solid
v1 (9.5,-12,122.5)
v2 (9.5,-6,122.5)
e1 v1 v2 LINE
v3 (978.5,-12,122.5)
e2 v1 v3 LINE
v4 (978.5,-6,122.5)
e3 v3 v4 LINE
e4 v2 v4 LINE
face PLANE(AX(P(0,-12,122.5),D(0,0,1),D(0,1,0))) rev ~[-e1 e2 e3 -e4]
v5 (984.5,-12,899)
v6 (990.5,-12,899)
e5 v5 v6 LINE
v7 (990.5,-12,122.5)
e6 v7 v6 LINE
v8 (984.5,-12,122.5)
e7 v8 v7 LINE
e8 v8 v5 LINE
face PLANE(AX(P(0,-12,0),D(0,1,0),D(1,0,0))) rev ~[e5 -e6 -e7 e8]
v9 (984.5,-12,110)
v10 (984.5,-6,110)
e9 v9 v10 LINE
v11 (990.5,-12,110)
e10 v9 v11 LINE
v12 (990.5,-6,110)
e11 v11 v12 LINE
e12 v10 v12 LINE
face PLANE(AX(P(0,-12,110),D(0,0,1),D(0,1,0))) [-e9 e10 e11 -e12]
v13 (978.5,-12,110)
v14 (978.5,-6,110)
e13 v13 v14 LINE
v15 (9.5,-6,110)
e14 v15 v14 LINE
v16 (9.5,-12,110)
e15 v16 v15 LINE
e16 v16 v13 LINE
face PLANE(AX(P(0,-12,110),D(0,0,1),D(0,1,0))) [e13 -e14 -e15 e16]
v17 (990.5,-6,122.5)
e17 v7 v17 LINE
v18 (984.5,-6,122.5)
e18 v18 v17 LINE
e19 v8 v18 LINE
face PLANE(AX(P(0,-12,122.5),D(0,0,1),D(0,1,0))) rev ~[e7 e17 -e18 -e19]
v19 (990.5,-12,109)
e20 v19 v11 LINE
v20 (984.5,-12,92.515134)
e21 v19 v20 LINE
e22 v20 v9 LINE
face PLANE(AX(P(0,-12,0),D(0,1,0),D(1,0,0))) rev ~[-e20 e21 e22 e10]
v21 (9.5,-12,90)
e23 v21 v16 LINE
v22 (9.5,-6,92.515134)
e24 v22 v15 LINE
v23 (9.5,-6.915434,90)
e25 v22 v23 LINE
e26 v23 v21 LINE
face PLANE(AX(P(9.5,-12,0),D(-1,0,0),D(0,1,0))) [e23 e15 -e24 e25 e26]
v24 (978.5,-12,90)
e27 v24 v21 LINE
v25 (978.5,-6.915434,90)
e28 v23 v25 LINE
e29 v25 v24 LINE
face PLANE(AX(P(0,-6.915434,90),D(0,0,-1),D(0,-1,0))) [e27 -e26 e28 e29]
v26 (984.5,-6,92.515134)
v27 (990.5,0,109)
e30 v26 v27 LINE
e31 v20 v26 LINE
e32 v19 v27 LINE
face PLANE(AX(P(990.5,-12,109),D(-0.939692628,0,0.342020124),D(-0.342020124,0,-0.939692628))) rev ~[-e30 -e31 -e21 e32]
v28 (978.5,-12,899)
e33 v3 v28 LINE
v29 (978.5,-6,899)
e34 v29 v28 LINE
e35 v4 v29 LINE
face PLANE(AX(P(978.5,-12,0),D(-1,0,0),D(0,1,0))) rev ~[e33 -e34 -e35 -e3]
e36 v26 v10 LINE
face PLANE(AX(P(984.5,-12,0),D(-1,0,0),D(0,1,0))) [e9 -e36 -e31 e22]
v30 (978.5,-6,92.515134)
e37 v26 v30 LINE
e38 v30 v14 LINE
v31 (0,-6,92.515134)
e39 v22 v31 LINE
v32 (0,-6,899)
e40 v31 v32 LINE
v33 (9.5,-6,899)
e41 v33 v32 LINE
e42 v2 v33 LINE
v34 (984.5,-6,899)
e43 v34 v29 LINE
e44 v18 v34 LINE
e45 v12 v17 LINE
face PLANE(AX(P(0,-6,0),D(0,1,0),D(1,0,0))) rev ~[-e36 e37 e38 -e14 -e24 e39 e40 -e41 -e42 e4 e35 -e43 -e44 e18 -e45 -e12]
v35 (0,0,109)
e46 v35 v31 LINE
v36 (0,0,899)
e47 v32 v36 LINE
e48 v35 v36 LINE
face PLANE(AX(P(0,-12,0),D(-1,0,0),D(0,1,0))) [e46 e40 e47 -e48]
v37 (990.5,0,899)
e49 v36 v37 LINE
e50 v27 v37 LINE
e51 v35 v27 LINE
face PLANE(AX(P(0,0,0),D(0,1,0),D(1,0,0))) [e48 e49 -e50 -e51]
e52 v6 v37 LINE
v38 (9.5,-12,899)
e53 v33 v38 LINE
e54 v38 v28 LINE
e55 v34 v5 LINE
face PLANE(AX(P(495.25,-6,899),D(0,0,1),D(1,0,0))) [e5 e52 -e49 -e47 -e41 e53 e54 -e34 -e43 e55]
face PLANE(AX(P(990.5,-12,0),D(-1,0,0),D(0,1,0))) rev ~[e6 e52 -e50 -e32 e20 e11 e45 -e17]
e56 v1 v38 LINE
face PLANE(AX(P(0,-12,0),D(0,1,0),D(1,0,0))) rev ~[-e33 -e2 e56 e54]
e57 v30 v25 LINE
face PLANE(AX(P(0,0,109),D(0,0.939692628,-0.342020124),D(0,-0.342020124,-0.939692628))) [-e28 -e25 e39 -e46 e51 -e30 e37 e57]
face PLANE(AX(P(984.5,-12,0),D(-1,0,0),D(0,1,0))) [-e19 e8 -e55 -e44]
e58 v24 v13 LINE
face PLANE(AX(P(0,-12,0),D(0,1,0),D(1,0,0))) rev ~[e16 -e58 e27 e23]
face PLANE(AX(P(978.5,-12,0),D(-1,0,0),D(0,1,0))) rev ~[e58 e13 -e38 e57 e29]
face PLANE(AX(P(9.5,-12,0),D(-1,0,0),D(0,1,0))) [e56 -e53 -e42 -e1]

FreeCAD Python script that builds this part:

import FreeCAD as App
import Part
import Sketcher

V = App.Vector
Q = App.Units.Quantity


def add_polygon(sketch, points):
    """Adds a closed chain of lines whose ends are joined by coincident constraints."""
    first, n = sketch.GeometryCount, len(points)
    for a, b in zip(points, points[1:] + points[:1]):
        sketch.addGeometry(Part.LineSegment(App.Vector(*a, 0), App.Vector(*b, 0)), False)
    for i in range(n):
        sketch.addConstraint(Sketcher.Constraint("Coincident", first + i, 2, first + (i + 1) % n, 1))

doc = App.newDocument("Part")
params = doc.addObject("Spreadsheet::Sheet", "Params")
for row, (alias, value) in enumerate([
    ("sketch1_height", "12 mm"),
    ("sketch1_width", "990.5 mm"),
    ("pad1_length", "899 mm"),
    ("sketch2_height", "6 mm"),
    ("sketch2_width", "9.5 mm"),
    ("sketch3_width", "6 mm"),
    ("sketch4_width", "6 mm"),
    ("sketch4_height", "12.5 mm"),
    ("sketch5_width", "25 mm"),
    ("sketch5_height", "109 mm"),
    ("sketch5_height2", "90 mm"),
    ("sketch6_height", "19 mm"),
], start=1):
    params.set(f"A{row}", alias)
    params.set(f"B{row}", "=" + value)
    params.setAlias(f"B{row}", alias)

body = doc.addObject("PartDesign::Body", "Body")

# Sketch on XY plane
sketch1 = body.newObject("Sketcher::SketchObject", "Sketch")
sketch1.AttachmentSupport = (doc.getObject("XY_Plane"), [""])
sketch1.MapMode = "FlatFace"
add_polygon(sketch1, [(0, 0), (0, -12), (990, -12), (990, 0)])  # lines 0-3
sketch1.addConstraint([
    Sketcher.Constraint("Vertical", 0),
    Sketcher.Constraint("Horizontal", 1),
    Sketcher.Constraint("Vertical", 2),
    Sketcher.Constraint("Horizontal", 3),
    Sketcher.Constraint("Coincident", 3, 2, -1, 1),
    Sketcher.Constraint("DistanceY", 0, 2, 0, 1, 12.0),
    Sketcher.Constraint("DistanceX", 1, 1, 1, 2, 990.5),
])
sketch1.setExpression("Constraints[9]", "Params.sketch1_height")
sketch1.setExpression("Constraints[10]", "Params.sketch1_width")
pad1 = body.newObject("PartDesign::Pad", "Pad")
pad1.Profile = sketch1
pad1.setExpression("Length", "Params.pad1_length")

# Sketch on XY plane
sketch2 = body.newObject("Sketcher::SketchObject", "Sketch001")
sketch2.AttachmentSupport = (doc.getObject("XY_Plane"), [""])
sketch2.MapMode = "FlatFace"
add_polygon(sketch2, [(0, -6), (0, -12), (10, -12), (10, -6)])  # lines 0-3
sketch2.addConstraint([
    Sketcher.Constraint("Vertical", 0),
    Sketcher.Constraint("Horizontal", 1),
    Sketcher.Constraint("Vertical", 2),
    Sketcher.Constraint("Horizontal", 3),
    Sketcher.Constraint("PointOnObject", 0, 2, -2),
    Sketcher.Constraint("DistanceY", 0, 2, 0, 1, 6.0),
    Sketcher.Constraint("DistanceX", 1, 1, 1, 2, 9.5),
    Sketcher.Constraint("DistanceY", 0, 2, -1, 1, 12.0),
])
sketch2.setExpression("Constraints[9]", "Params.sketch2_height")
sketch2.setExpression("Constraints[10]", "Params.sketch2_width")
pocket1 = body.newObject("PartDesign::Pocket", "Pocket")
pocket1.Profile = sketch2
pocket1.Type = "ThroughAll"
pocket1.Reversed = True

# Sketch on XY plane
sketch3 = body.newObject("Sketcher::SketchObject", "Sketch002")
sketch3.AttachmentSupport = (doc.getObject("XY_Plane"), [""])
sketch3.MapMode = "FlatFace"
add_polygon(sketch3, [(978, -6), (978, -12), (984, -12), (984, -6)])  # lines 0-3
sketch3.addConstraint([
    Sketcher.Constraint("Vertical", 0),
    Sketcher.Constraint("Horizontal", 1),
    Sketcher.Constraint("Vertical", 2),
    Sketcher.Constraint("Horizontal", 3),
    Sketcher.Constraint("Equal", 3, 0),
    Sketcher.Constraint("DistanceX", 1, 1, 1, 2, 6.0),
    Sketcher.Constraint("DistanceY", 0, 2, -1, 1, 12.0),
    Sketcher.Constraint("DistanceX", -1, 1, 0, 2, 978.5),
])
sketch3.setExpression("Constraints[9]", "Params.sketch3_width")
pocket2 = body.newObject("PartDesign::Pocket", "Pocket001")
pocket2.Profile = sketch3
pocket2.Type = "ThroughAll"
pocket2.Reversed = True

# Sketch on YZ plane
sketch4 = body.newObject("Sketcher::SketchObject", "Sketch003")
sketch4.AttachmentSupport = (doc.getObject("YZ_Plane"), [""])
sketch4.MapMode = "FlatFace"
add_polygon(sketch4, [(-12, 122), (-12, 110), (-6, 110), (-6, 122)])  # lines 0-3
sketch4.addConstraint([
    Sketcher.Constraint("Vertical", 0),
    Sketcher.Constraint("Horizontal", 1),
    Sketcher.Constraint("Vertical", 2),
    Sketcher.Constraint("Horizontal", 3),
    Sketcher.Constraint("DistanceX", 1, 1, 1, 2, 6.0),
    Sketcher.Constraint("DistanceY", 0, 2, 0, 1, 12.5),
    Sketcher.Constraint("DistanceX", 0, 2, -1, 1, 12.0),
    Sketcher.Constraint("DistanceY", -1, 1, 0, 2, 110.0),
])
sketch4.setExpression("Constraints[8]", "Params.sketch4_width")
sketch4.setExpression("Constraints[9]", "Params.sketch4_height")
pocket3 = body.newObject("PartDesign::Pocket", "Pocket002")
pocket3.Profile = sketch4
pocket3.Type = "ThroughAll"
pocket3.Reversed = True

# Sketch on YZ plane
sketch5 = body.newObject("Sketcher::SketchObject", "Sketch004")
sketch5.AttachmentSupport = (doc.getObject("YZ_Plane"), [""])
sketch5.MapMode = "FlatFace"
add_polygon(sketch5, [(-25, 0), (0, 0), (0, 109), (-7, 90), (-25, 90)])  # lines 0-4
sketch5.addConstraint([
    Sketcher.Constraint("Horizontal", 0),
    Sketcher.Constraint("Vertical", 1),
    Sketcher.Constraint("Horizontal", 3),
    Sketcher.Constraint("Vertical", 4),
    Sketcher.Constraint("Coincident", 0, 2, -1, 1),
    Sketcher.Constraint("DistanceX", 0, 1, 0, 2, 25.0),
    Sketcher.Constraint("DistanceY", 1, 1, 1, 2, 109.0),
    Sketcher.Constraint("DistanceY", 4, 2, 4, 1, 90.0),
    Sketcher.Constraint("Angle", 2, Q("-109.999999 deg")),
])
sketch5.setExpression("Constraints[10]", "Params.sketch5_width")
sketch5.setExpression("Constraints[11]", "Params.sketch5_height")
sketch5.setExpression("Constraints[12]", "Params.sketch5_height2")
pocket4 = body.newObject("PartDesign::Pocket", "Pocket003")
pocket4.Profile = sketch5
pocket4.Type = "ThroughAll"
pocket4.Reversed = True

# Sketch on XZ plane
sketch6 = body.newObject("Sketcher::SketchObject", "Sketch005")
sketch6.AttachmentSupport = (doc.getObject("XZ_Plane"), [""])
sketch6.MapMode = "FlatFace"
sketch6.AttachmentOffset = App.Placement(V(0, 0, 12), App.Rotation())
add_polygon(sketch6, [(984, 90), (990, 90), (990, 109)])  # lines 0-2
sketch6.addConstraint([
    Sketcher.Constraint("Horizontal", 0),
    Sketcher.Constraint("Vertical", 1),
    Sketcher.Constraint("DistanceY", 1, 1, 1, 2, 19.0),
    Sketcher.Constraint("Angle", 2, Q("-109.999999 deg")),
    Sketcher.Constraint("DistanceY", -1, 1, 0, 2, 90.0),
    Sketcher.Constraint("DistanceX", -1, 1, 0, 2, 990.5),
])
sketch6.setExpression("Constraints[5]", "Params.sketch6_height")
pocket5 = body.newObject("PartDesign::Pocket", "Pocket004")
pocket5.Profile = sketch6
pocket5.Type = "ThroughAll"

doc.recompute()
